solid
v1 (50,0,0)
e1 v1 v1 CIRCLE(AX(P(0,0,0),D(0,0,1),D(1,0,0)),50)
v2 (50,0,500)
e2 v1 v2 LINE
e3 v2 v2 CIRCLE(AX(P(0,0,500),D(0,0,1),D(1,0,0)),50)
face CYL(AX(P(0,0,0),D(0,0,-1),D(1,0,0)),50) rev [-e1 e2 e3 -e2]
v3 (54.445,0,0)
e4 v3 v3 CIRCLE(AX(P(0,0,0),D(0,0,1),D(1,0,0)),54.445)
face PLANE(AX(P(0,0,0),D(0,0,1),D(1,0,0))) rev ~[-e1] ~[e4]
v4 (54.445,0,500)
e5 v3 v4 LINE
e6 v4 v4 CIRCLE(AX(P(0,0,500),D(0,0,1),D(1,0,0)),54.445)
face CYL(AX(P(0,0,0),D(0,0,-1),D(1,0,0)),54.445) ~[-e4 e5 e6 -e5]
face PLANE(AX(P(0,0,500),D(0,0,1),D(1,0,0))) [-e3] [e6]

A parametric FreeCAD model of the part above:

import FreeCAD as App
import Part
import Sketcher
Q = App.Units.Quantity

doc = App.newDocument("Part")
params = doc.addObject("Spreadsheet::Sheet", "Params")
for row, (alias, value) in enumerate([
    ("sketch1_diameter", "3.937 in"),
    ("sketch1_diameter2", "4.287 in"),
    ("pad1_length", "500 mm"),
], start=1):
    params.set(f"A{row}", alias)
    params.set(f"B{row}", "=" + value)
    params.setAlias(f"B{row}", alias)

body = doc.addObject("PartDesign::Body", "Body")

sketch1 = body.newObject("Sketcher::SketchObject", "Sketch")
sketch1.AttachmentSupport = (doc.getObject("XY_Plane"), [""])
sketch1.MapMode = "FlatFace"
sketch1.addGeometry(Part.Circle(App.Vector(0, 0, 0), App.Vector(0, 0, 1), 54.445), False)
sketch1.addGeometry(Part.Circle(App.Vector(0, 0, 0), App.Vector(0, 0, 1), 50), False)
sketch1.addConstraint(Sketcher.Constraint("Coincident", 0, 3, -1, 1))
sketch1.addConstraint(Sketcher.Constraint("Coincident", 1, 3, -1, 1))
sketch1.addConstraint(Sketcher.Constraint("Diameter", 1, Q("3.937 in")))
sketch1.addConstraint(Sketcher.Constraint("Diameter", 0, Q("4.287 in")))
sketch1.setExpression("Constraints[2]", "Params.sketch1_diameter")
sketch1.setExpression("Constraints[3]", "Params.sketch1_diameter2")
pad1 = body.newObject("PartDesign::Pad", "Pad")
pad1.Profile = sketch1
pad1.setExpression("Length", "Params.pad1_length")

doc.recompute()
